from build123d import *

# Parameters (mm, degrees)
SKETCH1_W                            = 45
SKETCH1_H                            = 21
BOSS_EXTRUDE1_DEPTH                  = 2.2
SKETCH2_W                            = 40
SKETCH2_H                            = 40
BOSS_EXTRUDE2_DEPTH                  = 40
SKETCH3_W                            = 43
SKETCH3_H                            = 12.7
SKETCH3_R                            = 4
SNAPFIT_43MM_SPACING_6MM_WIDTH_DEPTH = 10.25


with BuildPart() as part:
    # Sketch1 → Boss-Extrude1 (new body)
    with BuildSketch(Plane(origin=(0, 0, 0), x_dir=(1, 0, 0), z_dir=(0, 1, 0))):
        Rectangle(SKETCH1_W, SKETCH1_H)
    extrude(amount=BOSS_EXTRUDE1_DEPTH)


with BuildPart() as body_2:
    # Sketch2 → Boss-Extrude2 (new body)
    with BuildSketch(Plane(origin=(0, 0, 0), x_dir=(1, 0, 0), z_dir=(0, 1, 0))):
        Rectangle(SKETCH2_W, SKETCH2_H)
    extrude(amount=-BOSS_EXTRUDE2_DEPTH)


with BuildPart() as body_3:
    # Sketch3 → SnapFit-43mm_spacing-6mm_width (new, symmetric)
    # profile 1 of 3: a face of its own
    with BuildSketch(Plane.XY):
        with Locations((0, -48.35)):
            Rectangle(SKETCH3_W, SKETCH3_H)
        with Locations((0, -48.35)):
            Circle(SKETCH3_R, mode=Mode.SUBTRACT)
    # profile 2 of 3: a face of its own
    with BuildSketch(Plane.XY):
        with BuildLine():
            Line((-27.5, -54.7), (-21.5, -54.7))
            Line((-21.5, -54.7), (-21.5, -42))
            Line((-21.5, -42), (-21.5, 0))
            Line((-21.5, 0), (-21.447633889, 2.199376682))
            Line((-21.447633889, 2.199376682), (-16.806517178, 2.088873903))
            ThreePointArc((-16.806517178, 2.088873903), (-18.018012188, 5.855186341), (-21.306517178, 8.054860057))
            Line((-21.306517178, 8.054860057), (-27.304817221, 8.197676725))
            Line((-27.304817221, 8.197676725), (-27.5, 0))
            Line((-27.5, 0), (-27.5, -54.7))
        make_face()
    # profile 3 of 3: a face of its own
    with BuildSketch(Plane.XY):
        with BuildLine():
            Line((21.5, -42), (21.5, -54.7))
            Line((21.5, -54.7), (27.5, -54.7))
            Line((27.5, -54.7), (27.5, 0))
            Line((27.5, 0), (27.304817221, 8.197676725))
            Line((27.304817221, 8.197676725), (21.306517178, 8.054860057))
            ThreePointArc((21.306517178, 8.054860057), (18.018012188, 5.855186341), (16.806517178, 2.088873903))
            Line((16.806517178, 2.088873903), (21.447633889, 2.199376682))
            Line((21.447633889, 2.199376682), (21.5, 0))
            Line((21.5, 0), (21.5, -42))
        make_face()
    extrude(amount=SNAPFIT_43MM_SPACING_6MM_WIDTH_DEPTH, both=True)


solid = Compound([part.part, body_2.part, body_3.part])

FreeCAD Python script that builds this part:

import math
import FreeCAD as App
import Part
import Sketcher
from FreeCAD import Vector


def add_polygon(sketch, points):
    """Adds a closed chain of lines whose ends are joined by coincident constraints."""
    first, n = sketch.GeometryCount, len(points)
    for a, b in zip(points, points[1:] + points[:1]):
        sketch.addGeometry(Part.LineSegment(App.Vector(*a, 0), App.Vector(*b, 0)), False)
    for i in range(n):
        sketch.addConstraint(Sketcher.Constraint("Coincident", first + i, 2, first + (i + 1) % n, 1))

doc = App.newDocument("Part")
body = doc.addObject("PartDesign::Body", "Body")

# Sketch on XZ plane
sketch1 = doc.addObject("Sketcher::SketchObject", "Sketch")
body.addObject(sketch1)
sketch1.AttachmentSupport = (doc.XZ_Plane, [""])
sketch1.MapMode = "FlatFace"
add_polygon(sketch1, [(-22, -10), (-22, 10), (22, 10), (22, -10)])  # lines 0-3
sketch1.addConstraint([
    Sketcher.Constraint("Vertical", 0),
    Sketcher.Constraint("Horizontal", 1),
    Sketcher.Constraint("Vertical", 2),
    Sketcher.Constraint("Horizontal", 3),
    Sketcher.Constraint("Symmetric", 0, 2, 2, 2, -1, 1),
    Sketcher.Constraint("DistanceX", 1, 1, 1, 2, 45.0),
    Sketcher.Constraint("DistanceY", 0, 1, 0, 2, 21.0),
])
pad1 = doc.addObject("PartDesign::Pad", "Pad")
body.addObject(pad1)
pad1.Profile = sketch1
pad1.Length = 2.2
pad1.Reversed = True
body2 = doc.addObject("PartDesign::Body", "Body001")

# Sketch on XZ plane
sketch2 = doc.addObject("Sketcher::SketchObject", "Sketch001")
body2.addObject(sketch2)
sketch2.AttachmentSupport = (doc.getObject("XZ_Plane001"), [""])
sketch2.MapMode = "FlatFace"
add_polygon(sketch2, [(-20, -20), (-20, 20), (20, 20), (20, -20)])  # lines 0-3
sketch2.addConstraint([
    Sketcher.Constraint("Vertical", 0),
    Sketcher.Constraint("Horizontal", 1),
    Sketcher.Constraint("Vertical", 2),
    Sketcher.Constraint("Horizontal", 3),
    Sketcher.Constraint("Symmetric", 0, 2, 2, 2, -1, 1),
    Sketcher.Constraint("Equal", 3, 0),
    Sketcher.Constraint("DistanceX", 1, 1, 1, 2, 40.0),
])
pad2 = doc.addObject("PartDesign::Pad", "Pad001")
body2.addObject(pad2)
pad2.Profile = sketch2
pad2.Length = 40
body3 = doc.addObject("PartDesign::Body", "Body002")

# Sketch on XY plane
sketch3 = doc.addObject("Sketcher::SketchObject", "Sketch002")
body3.addObject(sketch3)
sketch3.AttachmentSupport = (doc.getObject("XY_Plane002"), [""])
sketch3.MapMode = "FlatFace"
sketch3.addGeometry([
    Part.LineSegment(Vector(27.5, -54.7, 0), Vector(27.5, 0, 0)),  # 0
    Part.LineSegment(Vector(27.5, 0, 0), Vector(27.3, 8.2, 0)),  # 1
    Part.LineSegment(Vector(27.3, 8.2, 0), Vector(21.3, 8.1, 0)),  # 2
    Part.ArcOfCircle(Part.Circle(Vector(22.8, 2.2, 0), Vector(0, 0, 1), 6), math.radians(105), math.radians(181)),  # 3
    Part.LineSegment(Vector(16.8, 2.1, 0), Vector(21.4, 2.2, 0)),  # 4
    Part.LineSegment(Vector(21.4, 2.2, 0), Vector(21.5, 0, 0)),  # 5
    Part.LineSegment(Vector(21.5, 0, 0), Vector(21.5, -42, 0)),  # 6
    Part.LineSegment(Vector(21.5, -42, 0), Vector(-21.5, -42, 0)),  # 7
    Part.LineSegment(Vector(-21.5, -42, 0), Vector(-21.5, 0, 0)),  # 8
    Part.LineSegment(Vector(-21.5, 0, 0), Vector(-21.4, 2.2, 0)),  # 9
    Part.LineSegment(Vector(-21.4, 2.2, 0), Vector(-16.8, 2.1, 0)),  # 10
    Part.ArcOfCircle(Part.Circle(Vector(-22.8, 2.2, 0), Vector(0, 0, 1), 6), math.radians(-1), math.radians(75)),  # 11
    Part.LineSegment(Vector(-21.3, 8.1, 0), Vector(-27.3, 8.2, 0)),  # 12
    Part.LineSegment(Vector(-27.3, 8.2, 0), Vector(-27.5, 0, 0)),  # 13
    Part.LineSegment(Vector(-27.5, 0, 0), Vector(-27.5, -54.7, 0)),  # 14
    Part.LineSegment(Vector(-27.5, -54.7, 0), Vector(27.5, -54.7, 0)),  # 15
    Part.Circle(Vector(0, -48.4, 0), Vector(0, 0, 1), 4),  # 16
], False)
sketch3.addConstraint([
    Sketcher.Constraint("Coincident", 0, 2, 1, 1),
    Sketcher.Constraint("Coincident", 1, 2, 2, 1),
    Sketcher.Constraint("Coincident", 2, 2, 3, 1),
    Sketcher.Constraint("Coincident", 3, 2, 4, 1),
    Sketcher.Constraint("Coincident", 4, 2, 5, 1),
    Sketcher.Constraint("Coincident", 5, 2, 6, 1),
    Sketcher.Constraint("Coincident", 6, 2, 7, 1),
    Sketcher.Constraint("Coincident", 7, 2, 8, 1),
    Sketcher.Constraint("Coincident", 8, 2, 9, 1),
    Sketcher.Constraint("Coincident", 9, 2, 10, 1),
    Sketcher.Constraint("Coincident", 10, 2, 11, 1),
    Sketcher.Constraint("Coincident", 11, 2, 12, 1),
    Sketcher.Constraint("Coincident", 12, 2, 13, 1),
    Sketcher.Constraint("Coincident", 13, 2, 14, 1),
    Sketcher.Constraint("Coincident", 14, 2, 15, 1),
    Sketcher.Constraint("Coincident", 15, 2, 0, 1),
    Sketcher.Constraint("Vertical", 0),
    Sketcher.Constraint("Vertical", 6),
    Sketcher.Constraint("Horizontal", 7),
    Sketcher.Constraint("Vertical", 8),
    Sketcher.Constraint("Vertical", 14),
    Sketcher.Constraint("Horizontal", 15),
    Sketcher.Constraint("Equal", 3, 11),
    Sketcher.Constraint("Symmetric", 5, 2, 8, 2, -1, 1),
    Sketcher.Constraint("Symmetric", 0, 2, 13, 2, -1, 1),
    Sketcher.Constraint("Symmetric", 3, 3, 11, 3, -2),
    Sketcher.Constraint("Symmetric", 4, 2, 9, 2, -2),
    Sketcher.Constraint("Symmetric", 1, 2, 12, 2, -2),
    Sketcher.Constraint("PointOnObject", 16, 3, -2),
    Sketcher.Constraint("PointOnObject", 0, 2, -1),
    Sketcher.Constraint("PointOnObject", 5, 2, -1),
    Sketcher.Constraint("Perpendicular", 1, 2),
    Sketcher.Constraint("Parallel", 2, 4),
    Sketcher.Constraint("Perpendicular", 4, 5),
    Sketcher.Constraint("Perpendicular", 9, 10),
    Sketcher.Constraint("Parallel", 10, 12),
    Sketcher.Constraint("Diameter", 16, 8.0),
    Sketcher.Constraint("DistanceX", 7, 2, 7, 1, 43.0),
    Sketcher.Constraint("DistanceX", 15, 1, 15, 2, 55.0),
    Sketcher.Constraint("DistanceY", 6, 2, 6, 1, 42.0),
    Sketcher.Constraint("Distance", 2, 6.0),
    Sketcher.Constraint("DistanceY", 0, 1, 0, 2, 54.7),
    Sketcher.Constraint("Distance", 1, 8.2),
    Sketcher.Constraint("Distance", 5, 2.2),
    Sketcher.Constraint("DistanceX", 3, 2, 2, 2, 4.5),
    Sketcher.Constraint("DistanceY", 16, 3, -1, 1, 48.35),
    Sketcher.Constraint("Radius", 3, 6.016614),
    Sketcher.Constraint("DistanceX", 2, 2, 1, 2, 5.9983),
])
pad3 = doc.addObject("PartDesign::Pad", "Pad002")
body3.addObject(pad3)
pad3.Profile = sketch3
pad3.Length = 20.5
pad3.Midplane = True

doc.recompute()
